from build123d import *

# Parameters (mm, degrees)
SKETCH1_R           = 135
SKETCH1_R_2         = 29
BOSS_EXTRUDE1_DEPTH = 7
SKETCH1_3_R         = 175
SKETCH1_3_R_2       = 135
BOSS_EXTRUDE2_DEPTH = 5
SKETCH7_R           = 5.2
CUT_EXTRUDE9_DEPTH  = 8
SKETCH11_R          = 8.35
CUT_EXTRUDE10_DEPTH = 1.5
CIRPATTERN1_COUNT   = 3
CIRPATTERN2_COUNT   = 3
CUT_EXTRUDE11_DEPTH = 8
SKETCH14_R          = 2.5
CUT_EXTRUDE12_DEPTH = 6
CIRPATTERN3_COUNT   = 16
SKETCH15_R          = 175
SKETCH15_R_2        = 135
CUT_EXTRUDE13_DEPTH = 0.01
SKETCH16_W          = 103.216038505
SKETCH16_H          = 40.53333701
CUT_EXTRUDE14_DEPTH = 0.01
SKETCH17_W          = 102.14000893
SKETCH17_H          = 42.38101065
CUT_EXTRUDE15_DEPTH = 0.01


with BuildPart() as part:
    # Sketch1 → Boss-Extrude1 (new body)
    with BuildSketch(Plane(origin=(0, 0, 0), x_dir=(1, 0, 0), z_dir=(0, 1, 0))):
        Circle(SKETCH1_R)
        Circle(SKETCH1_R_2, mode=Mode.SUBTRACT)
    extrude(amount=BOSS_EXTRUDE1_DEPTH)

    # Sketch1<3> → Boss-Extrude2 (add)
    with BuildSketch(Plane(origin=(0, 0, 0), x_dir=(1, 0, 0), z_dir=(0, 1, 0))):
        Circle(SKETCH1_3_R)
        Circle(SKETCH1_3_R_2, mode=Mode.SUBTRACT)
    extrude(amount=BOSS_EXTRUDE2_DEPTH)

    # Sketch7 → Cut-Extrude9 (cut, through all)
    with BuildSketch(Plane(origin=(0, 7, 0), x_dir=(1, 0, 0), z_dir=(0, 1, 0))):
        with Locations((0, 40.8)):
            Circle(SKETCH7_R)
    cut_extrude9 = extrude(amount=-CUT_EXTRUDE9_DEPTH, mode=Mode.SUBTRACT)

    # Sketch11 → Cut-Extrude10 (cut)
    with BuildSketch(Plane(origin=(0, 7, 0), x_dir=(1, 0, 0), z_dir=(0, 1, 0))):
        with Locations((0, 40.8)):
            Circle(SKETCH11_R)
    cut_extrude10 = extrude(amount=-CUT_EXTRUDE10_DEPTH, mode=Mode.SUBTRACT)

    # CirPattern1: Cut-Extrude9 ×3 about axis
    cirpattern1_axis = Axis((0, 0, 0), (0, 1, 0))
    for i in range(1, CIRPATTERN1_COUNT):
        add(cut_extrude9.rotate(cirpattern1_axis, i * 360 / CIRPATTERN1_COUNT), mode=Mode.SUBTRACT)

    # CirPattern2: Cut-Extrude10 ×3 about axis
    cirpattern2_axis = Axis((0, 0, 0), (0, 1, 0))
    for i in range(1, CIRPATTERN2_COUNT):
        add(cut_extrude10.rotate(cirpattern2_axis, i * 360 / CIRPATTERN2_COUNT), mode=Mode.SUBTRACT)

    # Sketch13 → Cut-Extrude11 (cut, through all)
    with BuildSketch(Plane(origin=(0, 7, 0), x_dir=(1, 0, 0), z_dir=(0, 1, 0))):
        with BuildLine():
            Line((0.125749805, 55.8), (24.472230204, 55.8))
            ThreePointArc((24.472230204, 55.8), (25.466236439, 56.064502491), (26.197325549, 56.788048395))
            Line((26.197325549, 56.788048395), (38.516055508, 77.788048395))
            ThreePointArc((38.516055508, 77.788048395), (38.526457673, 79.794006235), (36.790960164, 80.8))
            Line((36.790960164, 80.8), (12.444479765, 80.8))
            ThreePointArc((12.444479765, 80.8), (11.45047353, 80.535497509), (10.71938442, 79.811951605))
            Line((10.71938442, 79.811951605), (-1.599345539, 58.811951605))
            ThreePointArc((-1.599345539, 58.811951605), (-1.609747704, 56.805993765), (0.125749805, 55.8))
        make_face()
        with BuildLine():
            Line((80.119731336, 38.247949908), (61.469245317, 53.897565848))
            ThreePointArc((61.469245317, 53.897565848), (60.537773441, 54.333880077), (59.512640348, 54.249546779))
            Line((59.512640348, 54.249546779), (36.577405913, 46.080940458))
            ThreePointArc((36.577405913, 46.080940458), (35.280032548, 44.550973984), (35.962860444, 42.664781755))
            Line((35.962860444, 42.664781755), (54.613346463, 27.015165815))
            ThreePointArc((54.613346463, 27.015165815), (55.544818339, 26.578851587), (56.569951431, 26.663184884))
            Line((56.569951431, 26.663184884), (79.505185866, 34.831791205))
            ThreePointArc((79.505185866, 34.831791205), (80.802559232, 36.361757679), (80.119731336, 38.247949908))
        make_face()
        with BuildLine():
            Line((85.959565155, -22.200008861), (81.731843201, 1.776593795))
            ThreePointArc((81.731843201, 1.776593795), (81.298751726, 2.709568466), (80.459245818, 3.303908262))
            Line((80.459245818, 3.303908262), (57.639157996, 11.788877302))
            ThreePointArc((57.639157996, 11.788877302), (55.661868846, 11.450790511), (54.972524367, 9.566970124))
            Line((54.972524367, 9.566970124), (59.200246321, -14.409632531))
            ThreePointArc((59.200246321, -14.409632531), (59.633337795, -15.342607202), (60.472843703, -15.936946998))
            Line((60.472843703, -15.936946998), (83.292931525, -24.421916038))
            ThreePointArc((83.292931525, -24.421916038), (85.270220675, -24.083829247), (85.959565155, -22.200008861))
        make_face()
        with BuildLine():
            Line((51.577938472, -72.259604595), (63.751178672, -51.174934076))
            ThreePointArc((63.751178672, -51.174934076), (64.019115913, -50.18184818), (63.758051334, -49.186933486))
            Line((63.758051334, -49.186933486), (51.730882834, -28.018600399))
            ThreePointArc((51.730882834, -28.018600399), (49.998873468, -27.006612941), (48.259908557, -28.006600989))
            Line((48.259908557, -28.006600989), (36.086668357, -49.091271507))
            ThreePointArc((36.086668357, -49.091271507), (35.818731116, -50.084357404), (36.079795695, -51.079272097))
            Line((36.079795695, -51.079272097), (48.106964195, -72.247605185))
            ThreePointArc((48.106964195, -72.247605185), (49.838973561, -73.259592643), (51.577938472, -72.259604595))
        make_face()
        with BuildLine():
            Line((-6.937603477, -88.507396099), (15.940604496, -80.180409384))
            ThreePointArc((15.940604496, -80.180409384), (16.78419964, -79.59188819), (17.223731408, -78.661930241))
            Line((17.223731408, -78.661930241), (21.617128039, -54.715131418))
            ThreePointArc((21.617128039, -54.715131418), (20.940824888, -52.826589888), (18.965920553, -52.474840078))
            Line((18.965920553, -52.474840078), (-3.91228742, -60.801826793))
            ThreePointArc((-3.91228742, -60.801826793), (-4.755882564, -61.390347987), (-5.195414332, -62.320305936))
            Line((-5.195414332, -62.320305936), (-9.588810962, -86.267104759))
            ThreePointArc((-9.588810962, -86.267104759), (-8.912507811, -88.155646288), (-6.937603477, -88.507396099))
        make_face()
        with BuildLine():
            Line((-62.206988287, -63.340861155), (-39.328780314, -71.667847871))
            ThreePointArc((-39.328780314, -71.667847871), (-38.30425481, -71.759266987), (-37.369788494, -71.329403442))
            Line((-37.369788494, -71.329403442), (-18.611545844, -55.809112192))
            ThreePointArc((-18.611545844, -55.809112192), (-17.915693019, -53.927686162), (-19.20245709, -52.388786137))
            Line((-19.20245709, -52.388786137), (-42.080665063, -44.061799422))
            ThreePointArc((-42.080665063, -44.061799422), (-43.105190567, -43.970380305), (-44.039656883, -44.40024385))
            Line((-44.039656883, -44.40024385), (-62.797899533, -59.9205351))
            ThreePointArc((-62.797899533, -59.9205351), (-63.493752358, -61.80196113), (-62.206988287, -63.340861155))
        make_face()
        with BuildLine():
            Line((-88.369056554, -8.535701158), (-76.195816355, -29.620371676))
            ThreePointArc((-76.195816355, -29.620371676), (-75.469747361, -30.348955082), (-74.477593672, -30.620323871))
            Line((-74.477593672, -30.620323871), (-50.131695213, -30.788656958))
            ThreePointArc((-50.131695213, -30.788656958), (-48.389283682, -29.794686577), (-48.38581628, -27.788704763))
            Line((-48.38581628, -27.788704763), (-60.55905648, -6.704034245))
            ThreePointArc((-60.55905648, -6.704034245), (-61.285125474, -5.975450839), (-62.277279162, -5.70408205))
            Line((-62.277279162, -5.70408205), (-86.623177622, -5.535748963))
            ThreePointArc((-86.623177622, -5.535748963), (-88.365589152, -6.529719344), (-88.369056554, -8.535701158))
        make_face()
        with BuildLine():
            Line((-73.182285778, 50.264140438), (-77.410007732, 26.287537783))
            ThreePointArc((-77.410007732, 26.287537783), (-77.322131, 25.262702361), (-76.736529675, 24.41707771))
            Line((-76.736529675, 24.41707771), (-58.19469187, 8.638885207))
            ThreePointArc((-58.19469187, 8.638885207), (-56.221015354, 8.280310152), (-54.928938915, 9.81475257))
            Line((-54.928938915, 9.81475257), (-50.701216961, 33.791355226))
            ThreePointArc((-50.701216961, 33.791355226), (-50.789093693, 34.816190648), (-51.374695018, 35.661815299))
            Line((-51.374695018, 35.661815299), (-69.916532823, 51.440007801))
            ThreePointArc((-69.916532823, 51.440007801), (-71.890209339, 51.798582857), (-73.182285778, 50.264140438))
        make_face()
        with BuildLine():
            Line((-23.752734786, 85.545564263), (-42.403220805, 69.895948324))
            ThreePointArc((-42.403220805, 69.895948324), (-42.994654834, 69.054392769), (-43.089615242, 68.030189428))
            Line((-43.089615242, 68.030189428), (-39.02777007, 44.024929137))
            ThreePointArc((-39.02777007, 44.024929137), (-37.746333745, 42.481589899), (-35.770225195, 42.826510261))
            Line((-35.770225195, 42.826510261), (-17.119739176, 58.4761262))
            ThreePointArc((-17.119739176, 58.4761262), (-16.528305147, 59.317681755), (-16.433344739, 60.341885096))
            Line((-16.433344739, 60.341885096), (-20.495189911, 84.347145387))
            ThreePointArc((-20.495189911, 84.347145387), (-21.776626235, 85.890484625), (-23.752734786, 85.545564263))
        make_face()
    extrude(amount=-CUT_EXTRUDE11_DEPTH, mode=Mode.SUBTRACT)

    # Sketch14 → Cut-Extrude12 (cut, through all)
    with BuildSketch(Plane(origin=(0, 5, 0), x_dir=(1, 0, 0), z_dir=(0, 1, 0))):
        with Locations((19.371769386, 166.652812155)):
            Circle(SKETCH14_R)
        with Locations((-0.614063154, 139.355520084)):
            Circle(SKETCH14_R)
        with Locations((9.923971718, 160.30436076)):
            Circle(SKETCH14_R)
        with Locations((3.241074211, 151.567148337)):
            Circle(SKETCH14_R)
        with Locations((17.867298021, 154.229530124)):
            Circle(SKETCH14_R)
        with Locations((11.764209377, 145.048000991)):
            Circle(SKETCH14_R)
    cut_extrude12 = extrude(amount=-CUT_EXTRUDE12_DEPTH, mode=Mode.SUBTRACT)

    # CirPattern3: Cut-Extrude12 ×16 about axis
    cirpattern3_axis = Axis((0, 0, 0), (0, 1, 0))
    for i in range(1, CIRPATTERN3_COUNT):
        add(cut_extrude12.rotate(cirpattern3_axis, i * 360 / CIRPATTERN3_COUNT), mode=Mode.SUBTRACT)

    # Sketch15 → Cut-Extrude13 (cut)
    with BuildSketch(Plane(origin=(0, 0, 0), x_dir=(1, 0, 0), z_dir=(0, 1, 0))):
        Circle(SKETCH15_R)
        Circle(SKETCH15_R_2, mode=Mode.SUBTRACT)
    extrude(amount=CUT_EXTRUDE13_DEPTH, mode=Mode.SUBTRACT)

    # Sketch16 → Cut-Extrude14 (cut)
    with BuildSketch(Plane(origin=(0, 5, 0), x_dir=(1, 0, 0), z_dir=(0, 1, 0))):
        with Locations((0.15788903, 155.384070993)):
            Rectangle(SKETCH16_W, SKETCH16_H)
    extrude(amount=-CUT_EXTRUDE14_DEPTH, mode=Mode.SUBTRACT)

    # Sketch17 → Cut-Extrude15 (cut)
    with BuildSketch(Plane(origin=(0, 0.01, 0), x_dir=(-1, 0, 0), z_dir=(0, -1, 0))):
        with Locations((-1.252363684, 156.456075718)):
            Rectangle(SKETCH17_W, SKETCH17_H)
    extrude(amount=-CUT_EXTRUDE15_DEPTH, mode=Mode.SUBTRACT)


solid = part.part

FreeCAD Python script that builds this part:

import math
import FreeCAD as App
import Part
import Sketcher
from FreeCAD import Vector
Q = App.Units.Quantity

doc = App.newDocument("Part")
body = doc.addObject("PartDesign::Body", "Body")

# Sketch on XZ plane
sketch1 = body.newObject("Sketcher::SketchObject", "Sketch")
sketch1.AttachmentSupport = (doc.getObject("XZ_Plane"), [""])
sketch1.MapMode = "FlatFace"
sketch1.addGeometry(Part.Circle(Vector(0, 0, 0), Vector(0, 0, 1), 135), False)
sketch1.addGeometry(Part.Circle(Vector(0, 0, 0), Vector(0, 0, 1), 29), False)
sketch1.addConstraint(Sketcher.Constraint("Coincident", 0, 3, -1, 1))
sketch1.addConstraint(Sketcher.Constraint("Coincident", 1, 3, -1, 1))
sketch1.addConstraint(Sketcher.Constraint("Diameter", 0, 270.0))
sketch1.addConstraint(Sketcher.Constraint("Diameter", 1, 58.0))
pad1 = body.newObject("PartDesign::Pad", "Pad")
pad1.Profile = sketch1
pad1.Length = 7
pad1.Reversed = True

# Sketch on XZ plane
sketch2 = body.newObject("Sketcher::SketchObject", "Sketch001")
sketch2.AttachmentSupport = (doc.getObject("XZ_Plane"), [""])
sketch2.MapMode = "FlatFace"
sketch2.addGeometry(Part.Circle(Vector(0, 0, 0), Vector(0, 0, 1), 175), False)
sketch2.addGeometry(Part.Circle(Vector(0, 0, 0), Vector(0, 0, 1), 135), False)
sketch2.addConstraint(Sketcher.Constraint("Coincident", 0, 3, -1, 1))
sketch2.addConstraint(Sketcher.Constraint("Coincident", 1, 3, -1, 1))
sketch2.addConstraint(Sketcher.Constraint("Diameter", 0, 350.0))
sketch2.addConstraint(Sketcher.Constraint("Diameter", 1, 270.0))
pad2 = body.newObject("PartDesign::Pad", "Pad001")
pad2.Profile = sketch2
pad2.Length = 5
pad2.Reversed = True

# Sketch on XZ plane
sketch3 = body.newObject("Sketcher::SketchObject", "Sketch002")
sketch3.AttachmentSupport = (doc.getObject("XZ_Plane"), [""])
sketch3.MapMode = "FlatFace"
sketch3.AttachmentOffset = App.Placement(Vector(0, 0, -7), App.Rotation())
sketch3.addGeometry(Part.Circle(Vector(0, -41, 0), Vector(0, 0, 1), 5), False)
sketch3.addConstraint(Sketcher.Constraint("PointOnObject", 0, 3, -2))
sketch3.addConstraint(Sketcher.Constraint("Diameter", 0, 10.4))
sketch3.addConstraint(Sketcher.Constraint("DistanceY", 0, 3, -1, 1, 40.8))
pocket1 = body.newObject("PartDesign::Pocket", "Pocket")
pocket1.Profile = sketch3
pocket1.Type = "ThroughAll"
pocket1.Reversed = True

# Sketch on XZ plane
sketch4 = body.newObject("Sketcher::SketchObject", "Sketch003")
sketch4.AttachmentSupport = (doc.getObject("XZ_Plane"), [""])
sketch4.MapMode = "FlatFace"
sketch4.AttachmentOffset = App.Placement(Vector(0, 0, -7), App.Rotation())
sketch4.addGeometry(Part.Circle(Vector(0, -41, 0), Vector(0, 0, 1), 8), False)
sketch4.addConstraint(Sketcher.Constraint("PointOnObject", 0, 3, -2))
sketch4.addConstraint(Sketcher.Constraint("Diameter", 0, 16.7))
sketch4.addConstraint(Sketcher.Constraint("DistanceY", 0, 3, -1, 1, 40.8))
pocket2 = body.newObject("PartDesign::Pocket", "Pocket001")
pocket2.Profile = sketch4
pocket2.Length = 1.5
pocket2.Reversed = True
doc.recompute()

polarpattern = body.newObject("PartDesign::PolarPattern", "PolarPattern")
polarpattern.Originals = [pocket1]
polarpattern.Axis = (doc.getObject("Y_Axis"), [""])
polarpattern.Angle = 360
polarpattern.Occurrences = 3
body.Tip = polarpattern
doc.recompute()

polarpattern2 = body.newObject("PartDesign::PolarPattern", "PolarPattern001")
polarpattern2.Originals = [pocket2]
polarpattern2.Axis = (doc.getObject("Y_Axis"), [""])
polarpattern2.Angle = 360
polarpattern2.Occurrences = 3
body.Tip = polarpattern2

# Sketch on XZ plane
sketch5 = body.newObject("Sketcher::SketchObject", "Sketch004")
sketch5.AttachmentSupport = (doc.getObject("XZ_Plane"), [""])
sketch5.MapMode = "FlatFace"
sketch5.AttachmentOffset = App.Placement(Vector(0, 0, -7), App.Rotation())
sketch5.addGeometry(Part.LineSegment(Vector(0.1, -55.8, 0), Vector(24.5, -55.8, 0)), False)
sketch5.addGeometry(Part.ArcOfCircle(Part.Circle(Vector(24.5, -57.8, 0), Vector(0, 0, 1), 2), math.radians(30), math.radians(90)), False)
sketch5.addGeometry(Part.LineSegment(Vector(26.2, -56.8, 0), Vector(38.5, -77.8, 0)), False)
sketch5.addGeometry(Part.ArcOfCircle(Part.Circle(Vector(36.8, -78.8, 0), Vector(0, 0, 1), 2), math.radians(-90), math.radians(30)), False)
sketch5.addGeometry(Part.LineSegment(Vector(36.8, -80.8, 0), Vector(12.4, -80.8, 0)), False)
sketch5.addGeometry(Part.ArcOfCircle(Part.Circle(Vector(12.4, -78.8, 0), Vector(0, 0, 1), 2), math.radians(-150), math.radians(-90)), False)
sketch5.addGeometry(Part.LineSegment(Vector(10.7, -79.8, 0), Vector(-1.6, -58.8, 0)), False)
sketch5.addGeometry(Part.ArcOfCircle(Part.Circle(Vector(0.1, -57.8, 0), Vector(0, 0, 1), 2), math.radians(90), math.radians(210)), False)
sketch5.addGeometry(Part.LineSegment(Vector(80.1, -38.2, 0), Vector(61.5, -53.9, 0)), False)
sketch5.addGeometry(Part.ArcOfCircle(Part.Circle(Vector(60.2, -52.4, 0), Vector(0, 0, 1), 2), math.radians(-110), math.radians(-50)), False)
sketch5.addGeometry(Part.LineSegment(Vector(59.5, -54.2, 0), Vector(36.6, -46.1, 0)), False)
sketch5.addGeometry(Part.ArcOfCircle(Part.Circle(Vector(37.2, -44.2, 0), Vector(0, 0, 1), 2), math.radians(130), math.radians(250)), False)
sketch5.addGeometry(Part.LineSegment(Vector(36, -42.7, 0), Vector(54.6, -27, 0)), False)
sketch5.addGeometry(Part.ArcOfCircle(Part.Circle(Vector(55.9, -28.5, 0), Vector(0, 0, 1), 2), math.radians(70), math.radians(130)), False)
sketch5.addGeometry(Part.LineSegment(Vector(56.6, -26.7, 0), Vector(79.5, -34.8, 0)), False)
sketch5.addGeometry(Part.ArcOfCircle(Part.Circle(Vector(78.8, -36.7, 0), Vector(0, 0, 1), 2), math.radians(-50), math.radians(70)), False)
sketch5.addGeometry(Part.LineSegment(Vector(86, 22.2, 0), Vector(81.7, -1.8, 0)), False)
sketch5.addGeometry(Part.ArcOfCircle(Part.Circle(Vector(79.8, -1.4, 0), Vector(0, 0, 1), 2), math.radians(-70), math.radians(-10)), False)
sketch5.addGeometry(Part.LineSegment(Vector(80.5, -3.3, 0), Vector(57.6, -11.8, 0)), False)
sketch5.addGeometry(Part.ArcOfCircle(Part.Circle(Vector(56.9, -9.9, 0), Vector(0, 0, 1), 2), math.radians(170), math.radians(290)), False)
sketch5.addGeometry(Part.LineSegment(Vector(55, -9.6, 0), Vector(59.2, 14.4, 0)), False)
sketch5.addGeometry(Part.ArcOfCircle(Part.Circle(Vector(61.2, 14.1, 0), Vector(0, 0, 1), 2), math.radians(110), math.radians(170)), False)
sketch5.addGeometry(Part.LineSegment(Vector(60.5, 15.9, 0), Vector(83.3, 24.4, 0)), False)
sketch5.addGeometry(Part.ArcOfCircle(Part.Circle(Vector(84, 22.5, 0), Vector(0, 0, 1), 2), math.radians(-10), math.radians(110)), False)
sketch5.addGeometry(Part.LineSegment(Vector(51.6, 72.3, 0), Vector(63.8, 51.2, 0)), False)
sketch5.addGeometry(Part.ArcOfCircle(Part.Circle(Vector(62, 50.2, 0), Vector(0, 0, 1), 2), math.radians(-30), math.radians(30)), False)
sketch5.addGeometry(Part.LineSegment(Vector(63.8, 49.2, 0), Vector(51.7, 28, 0)), False)
sketch5.addGeometry(Part.ArcOfCircle(Part.Circle(Vector(50, 29, 0), Vector(0, 0, 1), 2), math.radians(-150), math.radians(-30)), False)
sketch5.addGeometry(Part.LineSegment(Vector(48.3, 28, 0), Vector(36.1, 49.1, 0)), False)
sketch5.addGeometry(Part.ArcOfCircle(Part.Circle(Vector(37.8, 50.1, 0), Vector(0, 0, 1), 2), math.radians(150), math.radians(210)), False)
sketch5.addGeometry(Part.LineSegment(Vector(36.1, 51.1, 0), Vector(48.1, 72.2, 0)), False)
sketch5.addGeometry(Part.ArcOfCircle(Part.Circle(Vector(49.8, 71.3, 0), Vector(0, 0, 1), 2), math.radians(30), math.radians(150)), False)
sketch5.addGeometry(Part.LineSegment(Vector(-6.9, 88.5, 0), Vector(15.9, 80.2, 0)), False)
sketch5.addGeometry(Part.ArcOfCircle(Part.Circle(Vector(15.3, 78.3, 0), Vector(0, 0, 1), 2), math.radians(10), math.radians(70)), False)
sketch5.addGeometry(Part.LineSegment(Vector(17.2, 78.7, 0), Vector(21.6, 54.7, 0)), False)
sketch5.addGeometry(Part.ArcOfCircle(Part.Circle(Vector(19.6, 54.4, 0), Vector(0, 0, 1), 2), math.radians(-110), math.radians(10)), False)
sketch5.addGeometry(Part.LineSegment(Vector(19, 52.5, 0), Vector(-3.9, 60.8, 0)), False)
sketch5.addGeometry(Part.ArcOfCircle(Part.Circle(Vector(-3.2, 62.7, 0), Vector(0, 0, 1), 2), math.radians(-170), math.radians(-110)), False)
sketch5.addGeometry(Part.LineSegment(Vector(-5.2, 62.3, 0), Vector(-9.6, 86.3, 0)), False)
sketch5.addGeometry(Part.ArcOfCircle(Part.Circle(Vector(-7.6, 86.6, 0), Vector(0, 0, 1), 2), math.radians(70), math.radians(190)), False)
sketch5.addGeometry(Part.LineSegment(Vector(-62.2, 63.3, 0), Vector(-39.3, 71.7, 0)), False)
sketch5.addGeometry(Part.ArcOfCircle(Part.Circle(Vector(-38.6, 69.8, 0), Vector(0, 0, 1), 2), math.radians(50), math.radians(110)), False)
sketch5.addGeometry(Part.LineSegment(Vector(-37.4, 71.3, 0), Vector(-18.6, 55.8, 0)), False)
sketch5.addGeometry(Part.ArcOfCircle(Part.Circle(Vector(-19.9, 54.3, 0), Vector(0, 0, 1), 2), math.radians(-70), math.radians(50)), False)
sketch5.addGeometry(Part.LineSegment(Vector(-19.2, 52.4, 0), Vector(-42.1, 44.1, 0)), False)
sketch5.addGeometry(Part.ArcOfCircle(Part.Circle(Vector(-42.8, 45.9, 0), Vector(0, 0, 1), 2), math.radians(-130), math.radians(-70)), False)
sketch5.addGeometry(Part.LineSegment(Vector(-44, 44.4, 0), Vector(-62.8, 59.9, 0)), False)
sketch5.addGeometry(Part.ArcOfCircle(Part.Circle(Vector(-61.5, 61.5, 0), Vector(0, 0, 1), 2), math.radians(110), math.radians(230)), False)
sketch5.addGeometry(Part.LineSegment(Vector(-88.4, 8.5, 0), Vector(-76.2, 29.6, 0)), False)
sketch5.addGeometry(Part.ArcOfCircle(Part.Circle(Vector(-74.5, 28.6, 0), Vector(0, 0, 1), 2), math.radians(90), math.radians(150)), False)
sketch5.addGeometry(Part.LineSegment(Vector(-74.5, 30.6, 0), Vector(-50.1, 30.8, 0)), False)
sketch5.addGeometry(Part.ArcOfCircle(Part.Circle(Vector(-50.1, 28.8, 0), Vector(0, 0, 1), 2), math.radians(-30), math.radians(90)), False)
sketch5.addGeometry(Part.LineSegment(Vector(-48.4, 27.8, 0), Vector(-60.6, 6.7, 0)), False)
sketch5.addGeometry(Part.ArcOfCircle(Part.Circle(Vector(-62.3, 7.7, 0), Vector(0, 0, 1), 2), math.radians(-90), math.radians(-30)), False)
sketch5.addGeometry(Part.LineSegment(Vector(-62.3, 5.7, 0), Vector(-86.6, 5.5, 0)), False)
sketch5.addGeometry(Part.ArcOfCircle(Part.Circle(Vector(-86.6, 7.5, 0), Vector(0, 0, 1), 2), math.radians(150), math.radians(270)), False)
sketch5.addGeometry(Part.LineSegment(Vector(-73.2, -50.3, 0), Vector(-77.4, -26.3, 0)), False)
sketch5.addGeometry(Part.ArcOfCircle(Part.Circle(Vector(-75.4, -25.9, 0), Vector(0, 0, 1), 2), math.radians(130), math.radians(190)), False)
sketch5.addGeometry(Part.LineSegment(Vector(-76.7, -24.4, 0), Vector(-58.2, -8.6, 0)), False)
sketch5.addGeometry(Part.ArcOfCircle(Part.Circle(Vector(-56.9, -10.2, 0), Vector(0, 0, 1), 2), math.radians(10), math.radians(130)), False)
sketch5.addGeometry(Part.LineSegment(Vector(-54.9, -9.8, 0), Vector(-50.7, -33.8, 0)), False)
sketch5.addGeometry(Part.ArcOfCircle(Part.Circle(Vector(-52.7, -34.1, 0), Vector(0, 0, 1), 2), math.radians(-50), math.radians(10)), False)
sketch5.addGeometry(Part.LineSegment(Vector(-51.4, -35.7, 0), Vector(-69.9, -51.4, 0)), False)
sketch5.addGeometry(Part.ArcOfCircle(Part.Circle(Vector(-71.2, -49.9, 0), Vector(0, 0, 1), 2), math.radians(-170), math.radians(-50)), False)
sketch5.addGeometry(Part.LineSegment(Vector(-23.8, -85.5, 0), Vector(-42.4, -69.9, 0)), False)
sketch5.addGeometry(Part.ArcOfCircle(Part.Circle(Vector(-41.1, -68.4, 0), Vector(0, 0, 1), 2), math.radians(170), math.radians(230)), False)
sketch5.addGeometry(Part.LineSegment(Vector(-43.1, -68, 0), Vector(-39, -44, 0)), False)
sketch5.addGeometry(Part.ArcOfCircle(Part.Circle(Vector(-37.1, -44.4, 0), Vector(0, 0, 1), 2), math.radians(50), math.radians(170)), False)
sketch5.addGeometry(Part.LineSegment(Vector(-35.8, -42.8, 0), Vector(-17.1, -58.5, 0)), False)
sketch5.addGeometry(Part.ArcOfCircle(Part.Circle(Vector(-18.4, -60, 0), Vector(0, 0, 1), 2), math.radians(-10), math.radians(50)), False)
sketch5.addGeometry(Part.LineSegment(Vector(-16.4, -60.3, 0), Vector(-20.5, -84.3, 0)), False)
sketch5.addGeometry(Part.ArcOfCircle(Part.Circle(Vector(-22.5, -84, 0), Vector(0, 0, 1), 2), math.radians(-130), math.radians(-10)), False)
sketch5.addConstraint(Sketcher.Constraint("Tangent", 0, 2, 1, 2))
sketch5.addConstraint(Sketcher.Constraint("Tangent", 1, 1, 2, 1))
sketch5.addConstraint(Sketcher.Constraint("Tangent", 2, 2, 3, 2))
sketch5.addConstraint(Sketcher.Constraint("Tangent", 3, 1, 4, 1))
sketch5.addConstraint(Sketcher.Constraint("Tangent", 4, 2, 5, 2))
sketch5.addConstraint(Sketcher.Constraint("Tangent", 5, 1, 6, 1))
sketch5.addConstraint(Sketcher.Constraint("Tangent", 6, 2, 7, 2))
sketch5.addConstraint(Sketcher.Constraint("Tangent", 7, 1, 0, 1))
sketch5.addConstraint(Sketcher.Constraint("Tangent", 8, 2, 9, 2))
sketch5.addConstraint(Sketcher.Constraint("Tangent", 9, 1, 10, 1))
sketch5.addConstraint(Sketcher.Constraint("Tangent", 10, 2, 11, 2))
sketch5.addConstraint(Sketcher.Constraint("Tangent", 11, 1, 12, 1))
sketch5.addConstraint(Sketcher.Constraint("Tangent", 12, 2, 13, 2))
sketch5.addConstraint(Sketcher.Constraint("Tangent", 13, 1, 14, 1))
sketch5.addConstraint(Sketcher.Constraint("Tangent", 14, 2, 15, 2))
sketch5.addConstraint(Sketcher.Constraint("Tangent", 15, 1, 8, 1))
sketch5.addConstraint(Sketcher.Constraint("Tangent", 16, 2, 17, 2))
sketch5.addConstraint(Sketcher.Constraint("Tangent", 17, 1, 18, 1))
sketch5.addConstraint(Sketcher.Constraint("Tangent", 18, 2, 19, 2))
sketch5.addConstraint(Sketcher.Constraint("Tangent", 19, 1, 20, 1))
sketch5.addConstraint(Sketcher.Constraint("Tangent", 20, 2, 21, 2))
sketch5.addConstraint(Sketcher.Constraint("Tangent", 21, 1, 22, 1))
sketch5.addConstraint(Sketcher.Constraint("Tangent", 22, 2, 23, 2))
sketch5.addConstraint(Sketcher.Constraint("Tangent", 23, 1, 16, 1))
sketch5.addConstraint(Sketcher.Constraint("Tangent", 24, 2, 25, 2))
sketch5.addConstraint(Sketcher.Constraint("Tangent", 25, 1, 26, 1))
sketch5.addConstraint(Sketcher.Constraint("Tangent", 26, 2, 27, 2))
sketch5.addConstraint(Sketcher.Constraint("Tangent", 27, 1, 28, 1))
sketch5.addConstraint(Sketcher.Constraint("Tangent", 28, 2, 29, 2))
sketch5.addConstraint(Sketcher.Constraint("Tangent", 29, 1, 30, 1))
sketch5.addConstraint(Sketcher.Constraint("Tangent", 30, 2, 31, 2))
sketch5.addConstraint(Sketcher.Constraint("Tangent", 31, 1, 24, 1))
sketch5.addConstraint(Sketcher.Constraint("Tangent", 32, 2, 33, 2))
sketch5.addConstraint(Sketcher.Constraint("Tangent", 33, 1, 34, 1))
sketch5.addConstraint(Sketcher.Constraint("Tangent", 34, 2, 35, 2))
sketch5.addConstraint(Sketcher.Constraint("Tangent", 35, 1, 36, 1))
sketch5.addConstraint(Sketcher.Constraint("Tangent", 36, 2, 37, 2))
sketch5.addConstraint(Sketcher.Constraint("Tangent", 37, 1, 38, 1))
sketch5.addConstraint(Sketcher.Constraint("Tangent", 38, 2, 39, 2))
sketch5.addConstraint(Sketcher.Constraint("Tangent", 39, 1, 32, 1))
sketch5.addConstraint(Sketcher.Constraint("Tangent", 40, 2, 41, 2))
sketch5.addConstraint(Sketcher.Constraint("Tangent", 41, 1, 42, 1))
sketch5.addConstraint(Sketcher.Constraint("Tangent", 42, 2, 43, 2))
sketch5.addConstraint(Sketcher.Constraint("Tangent", 43, 1, 44, 1))
sketch5.addConstraint(Sketcher.Constraint("Tangent", 44, 2, 45, 2))
sketch5.addConstraint(Sketcher.Constraint("Tangent", 45, 1, 46, 1))
sketch5.addConstraint(Sketcher.Constraint("Tangent", 46, 2, 47, 2))
sketch5.addConstraint(Sketcher.Constraint("Tangent", 47, 1, 40, 1))
sketch5.addConstraint(Sketcher.Constraint("Tangent", 48, 2, 49, 2))
sketch5.addConstraint(Sketcher.Constraint("Tangent", 49, 1, 50, 1))
sketch5.addConstraint(Sketcher.Constraint("Tangent", 50, 2, 51, 2))
sketch5.addConstraint(Sketcher.Constraint("Tangent", 51, 1, 52, 1))
sketch5.addConstraint(Sketcher.Constraint("Tangent", 52, 2, 53, 2))
sketch5.addConstraint(Sketcher.Constraint("Tangent", 53, 1, 54, 1))
sketch5.addConstraint(Sketcher.Constraint("Tangent", 54, 2, 55, 2))
sketch5.addConstraint(Sketcher.Constraint("Tangent", 55, 1, 48, 1))
sketch5.addConstraint(Sketcher.Constraint("Tangent", 56, 2, 57, 2))
sketch5.addConstraint(Sketcher.Constraint("Tangent", 57, 1, 58, 1))
sketch5.addConstraint(Sketcher.Constraint("Tangent", 58, 2, 59, 2))
sketch5.addConstraint(Sketcher.Constraint("Tangent", 59, 1, 60, 1))
sketch5.addConstraint(Sketcher.Constraint("Tangent", 60, 2, 61, 2))
sketch5.addConstraint(Sketcher.Constraint("Tangent", 61, 1, 62, 1))
sketch5.addConstraint(Sketcher.Constraint("Tangent", 62, 2, 63, 2))
sketch5.addConstraint(Sketcher.Constraint("Tangent", 63, 1, 56, 1))
sketch5.addConstraint(Sketcher.Constraint("Tangent", 64, 2, 65, 2))
sketch5.addConstraint(Sketcher.Constraint("Tangent", 65, 1, 66, 1))
sketch5.addConstraint(Sketcher.Constraint("Tangent", 66, 2, 67, 2))
sketch5.addConstraint(Sketcher.Constraint("Tangent", 67, 1, 68, 1))
sketch5.addConstraint(Sketcher.Constraint("Tangent", 68, 2, 69, 2))
sketch5.addConstraint(Sketcher.Constraint("Tangent", 69, 1, 70, 1))
sketch5.addConstraint(Sketcher.Constraint("Tangent", 70, 2, 71, 2))
sketch5.addConstraint(Sketcher.Constraint("Tangent", 71, 1, 64, 1))
sketch5.addConstraint(Sketcher.Constraint("Horizontal", 0))
sketch5.addConstraint(Sketcher.Constraint("Horizontal", 4))
sketch5.addConstraint(Sketcher.Constraint("Equal", 1, 3))
sketch5.addConstraint(Sketcher.Constraint("Equal", 3, 5))
sketch5.addConstraint(Sketcher.Constraint("Equal", 5, 7))
sketch5.addConstraint(Sketcher.Constraint("Equal", 7, 9))
sketch5.addConstraint(Sketcher.Constraint("Equal", 9, 11))
sketch5.addConstraint(Sketcher.Constraint("Equal", 11, 13))
sketch5.addConstraint(Sketcher.Constraint("Equal", 13, 15))
sketch5.addConstraint(Sketcher.Constraint("Equal", 15, 17))
sketch5.addConstraint(Sketcher.Constraint("Equal", 17, 19))
sketch5.addConstraint(Sketcher.Constraint("Equal", 19, 21))
sketch5.addConstraint(Sketcher.Constraint("Equal", 21, 23))
sketch5.addConstraint(Sketcher.Constraint("Equal", 23, 25))
sketch5.addConstraint(Sketcher.Constraint("Equal", 25, 27))
sketch5.addConstraint(Sketcher.Constraint("Equal", 27, 29))
sketch5.addConstraint(Sketcher.Constraint("Equal", 29, 31))
sketch5.addConstraint(Sketcher.Constraint("Equal", 31, 33))
sketch5.addConstraint(Sketcher.Constraint("Equal", 33, 35))
sketch5.addConstraint(Sketcher.Constraint("Equal", 35, 37))
sketch5.addConstraint(Sketcher.Constraint("Equal", 37, 39))
sketch5.addConstraint(Sketcher.Constraint("Equal", 39, 41))
sketch5.addConstraint(Sketcher.Constraint("Equal", 41, 43))
sketch5.addConstraint(Sketcher.Constraint("Equal", 43, 45))
sketch5.addConstraint(Sketcher.Constraint("Equal", 45, 47))
sketch5.addConstraint(Sketcher.Constraint("Equal", 47, 49))
sketch5.addConstraint(Sketcher.Constraint("Equal", 49, 51))
sketch5.addConstraint(Sketcher.Constraint("Equal", 51, 53))
sketch5.addConstraint(Sketcher.Constraint("Equal", 53, 55))
sketch5.addConstraint(Sketcher.Constraint("Equal", 55, 57))
sketch5.addConstraint(Sketcher.Constraint("Equal", 57, 59))
sketch5.addConstraint(Sketcher.Constraint("Equal", 59, 61))
sketch5.addConstraint(Sketcher.Constraint("Equal", 61, 63))
sketch5.addConstraint(Sketcher.Constraint("Equal", 63, 65))
sketch5.addConstraint(Sketcher.Constraint("Equal", 65, 67))
sketch5.addConstraint(Sketcher.Constraint("Equal", 67, 69))
sketch5.addConstraint(Sketcher.Constraint("Equal", 69, 71))
sketch5.addConstraint(Sketcher.Constraint("Parallel", 2, 6))
sketch5.addConstraint(Sketcher.Constraint("Parallel", 8, 12))
sketch5.addConstraint(Sketcher.Constraint("Parallel", 10, 14))
sketch5.addConstraint(Sketcher.Constraint("Parallel", 16, 20))
sketch5.addConstraint(Sketcher.Constraint("Parallel", 18, 22))
sketch5.addConstraint(Sketcher.Constraint("Parallel", 24, 28))
sketch5.addConstraint(Sketcher.Constraint("Parallel", 26, 30))
sketch5.addConstraint(Sketcher.Constraint("Parallel", 32, 36))
sketch5.addConstraint(Sketcher.Constraint("Parallel", 34, 38))
sketch5.addConstraint(Sketcher.Constraint("Parallel", 40, 44))
sketch5.addConstraint(Sketcher.Constraint("Parallel", 42, 46))
sketch5.addConstraint(Sketcher.Constraint("Parallel", 48, 52))
sketch5.addConstraint(Sketcher.Constraint("Parallel", 50, 54))
sketch5.addConstraint(Sketcher.Constraint("Parallel", 56, 60))
sketch5.addConstraint(Sketcher.Constraint("Parallel", 58, 62))
sketch5.addConstraint(Sketcher.Constraint("Parallel", 64, 68))
sketch5.addConstraint(Sketcher.Constraint("Parallel", 66, 70))
sketch5.addConstraint(Sketcher.Constraint("Equal", 6, 8))
sketch5.addConstraint(Sketcher.Constraint("Equal", 8, 10))
sketch5.addConstraint(Sketcher.Constraint("Equal", 14, 16))
sketch5.addConstraint(Sketcher.Constraint("Equal", 16, 18))
sketch5.addConstraint(Sketcher.Constraint("Equal", 22, 24))
sketch5.addConstraint(Sketcher.Constraint("Equal", 24, 26))
sketch5.addConstraint(Sketcher.Constraint("Equal", 30, 32))
sketch5.addConstraint(Sketcher.Constraint("Equal", 32, 34))
sketch5.addConstraint(Sketcher.Constraint("Equal", 38, 40))
sketch5.addConstraint(Sketcher.Constraint("Equal", 40, 42))
sketch5.addConstraint(Sketcher.Constraint("Equal", 46, 48))
sketch5.addConstraint(Sketcher.Constraint("Equal", 48, 50))
sketch5.addConstraint(Sketcher.Constraint("Equal", 54, 56))
sketch5.addConstraint(Sketcher.Constraint("Equal", 56, 58))
sketch5.addConstraint(Sketcher.Constraint("Equal", 62, 64))
sketch5.addConstraint(Sketcher.Constraint("Equal", 64, 66))
sketch5.addConstraint(Sketcher.Constraint("Radius", 1, 2.0))
sketch5.addConstraint(Sketcher.Constraint("Angle", 8, Q("-140 deg")))
sketch5.addConstraint(Sketcher.Constraint("Angle", 16, Q("-100 deg")))
sketch5.addConstraint(Sketcher.Constraint("Angle", 24, Q("-60 deg")))
sketch5.addConstraint(Sketcher.Constraint("Angle", 32, Q("-20 deg")))
sketch5.addConstraint(Sketcher.Constraint("Angle", 40, Q("20 deg")))
sketch5.addConstraint(Sketcher.Constraint("Angle", 48, Q("60 deg")))
sketch5.addConstraint(Sketcher.Constraint("Angle", 56, Q("100 deg")))
sketch5.addConstraint(Sketcher.Constraint("Angle", 64, Q("140 deg")))
sketch5.addConstraint(Sketcher.Constraint("DistanceY", 1, 3, -1, 1, 57.8))
sketch5.addConstraint(Sketcher.Constraint("DistanceY", 3, 3, -1, 1, 78.8))
sketch5.addConstraint(Sketcher.Constraint("DistanceX", 0, 1, 0, 2, 24.34648))
sketch5.addConstraint(Sketcher.Constraint("DistanceY", -1, 1, 27, 3, 29.006601))
sketch5.addConstraint(Sketcher.Constraint("DistanceY", -1, 1, 55, 3, 7.535701))
sketch5.addConstraint(Sketcher.Constraint("DistanceX", 67, 3, -1, 1, 37.0558))
sketch5.addConstraint(Sketcher.Constraint("DistanceY", 67, 3, -1, 1, 44.358599))
sketch5.addConstraint(Sketcher.Constraint("DistanceY", -1, 1, 26, 2, 28.0186))
sketch5.addConstraint(Sketcher.Constraint("DistanceY", -1, 1, 44, 2, 44.061799))
sketch5.addConstraint(Sketcher.Constraint("DistanceX", 46, 2, -1, 1, 62.7979))
sketch5.addConstraint(Sketcher.Constraint("Distance", 2, 24.34648))
sketch5.addConstraint(Sketcher.Constraint("DistanceX", -1, 1, 1, 3, 24.47223))
sketch5.addConstraint(Sketcher.Constraint("DistanceX", -1, 1, 9, 3, 60.18367))
sketch5.addConstraint(Sketcher.Constraint("DistanceY", 11, 3, -1, 1, 44.196871))
sketch5.addConstraint(Sketcher.Constraint("DistanceX", -1, 1, 13, 3, 55.898922))
sketch5.addConstraint(Sketcher.Constraint("DistanceX", -1, 1, 19, 3, 56.94214))
sketch5.addConstraint(Sketcher.Constraint("DistanceX", -1, 1, 23, 3, 83.98995))
sketch5.addConstraint(Sketcher.Constraint("DistanceX", -1, 1, 27, 3, 49.991959))
sketch5.addConstraint(Sketcher.Constraint("DistanceX", -1, 1, 35, 3, 19.649961))
sketch5.addConstraint(Sketcher.Constraint("DistanceY", -1, 1, 39, 3, 86.628011))
sketch5.addConstraint(Sketcher.Constraint("DistanceX", 41, 3, -1, 1, 38.64474))
sketch5.addConstraint(Sketcher.Constraint("DistanceY", 57, 3, -1, 1, 25.940241))
sketch5.addConstraint(Sketcher.Constraint("DistanceY", 59, 3, -1, 1, 10.162049))
sketch5.addConstraint(Sketcher.Constraint("DistanceX", 63, 3, -1, 1, 71.21267))
sketch5.addConstraint(Sketcher.Constraint("DistanceY", 65, 3, -1, 1, 68.363859))
sketch5.addConstraint(Sketcher.Constraint("DistanceY", 17, 1, -1, 1, 3.303908))
sketch5.addConstraint(Sketcher.Constraint("DistanceX", -1, 1, 33, 1, 17.223731))
sketch5.addConstraint(Sketcher.Constraint("DistanceX", 53, 1, -1, 1, 62.277279))
sketch5.addConstraint(Sketcher.Constraint("DistanceX", 49, 3, -1, 1, 74.463766))
pocket3 = body.newObject("PartDesign::Pocket", "Pocket002")
pocket3.Profile = sketch5
pocket3.Type = "ThroughAll"
pocket3.Reversed = True

# Sketch on XZ plane
sketch6 = body.newObject("Sketcher::SketchObject", "Sketch005")
sketch6.AttachmentSupport = (doc.getObject("XZ_Plane"), [""])
sketch6.MapMode = "FlatFace"
sketch6.AttachmentOffset = App.Placement(Vector(0, 0, -5), App.Rotation())
sketch6.addGeometry(Part.Circle(Vector(19.4, -166.7, 0), Vector(0, 0, 1), 2.5), False)
sketch6.addGeometry(Part.Circle(Vector(-0.6, -139.4, 0), Vector(0, 0, 1), 2.5), False)
sketch6.addGeometry(Part.Circle(Vector(9.9, -160.3, 0), Vector(0, 0, 1), 2.5), False)
sketch6.addGeometry(Part.Circle(Vector(3.2, -151.6, 0), Vector(0, 0, 1), 2.5), False)
sketch6.addGeometry(Part.Circle(Vector(17.9, -154.2, 0), Vector(0, 0, 1), 2.5), False)
sketch6.addGeometry(Part.Circle(Vector(11.8, -145, 0), Vector(0, 0, 1), 2.5), False)
sketch6.addConstraint(Sketcher.Constraint("Equal", 0, 1))
sketch6.addConstraint(Sketcher.Constraint("Equal", 1, 2))
sketch6.addConstraint(Sketcher.Constraint("Equal", 2, 3))
sketch6.addConstraint(Sketcher.Constraint("Equal", 3, 4))
sketch6.addConstraint(Sketcher.Constraint("Equal", 4, 5))
sketch6.addConstraint(Sketcher.Constraint("Diameter", 0, 5.0))
sketch6.addConstraint(Sketcher.Constraint("DistanceY", 5, 3, -1, 1, 145.048001))
sketch6.addConstraint(Sketcher.Constraint("DistanceX", -1, 1, 4, 3, 17.867298))
sketch6.addConstraint(Sketcher.Constraint("DistanceX", -1, 1, 0, 3, 19.371769))
sketch6.addConstraint(Sketcher.Constraint("DistanceY", 1, 3, -1, 1, 139.35552))
sketch6.addConstraint(Sketcher.Constraint("DistanceX", -1, 1, 2, 3, 9.923972))
sketch6.addConstraint(Sketcher.Constraint("DistanceY", 2, 3, -1, 1, 160.304361))
sketch6.addConstraint(Sketcher.Constraint("DistanceY", 3, 3, -1, 1, 151.567148))
sketch6.addConstraint(Sketcher.Constraint("DistanceY", 4, 3, -1, 1, 154.22953))
sketch6.addConstraint(Sketcher.Constraint("DistanceX", -1, 1, 5, 3, 11.764209))
sketch6.addConstraint(Sketcher.Constraint("DistanceY", 0, 3, 2, 3, 6.348451))
sketch6.addConstraint(Sketcher.Constraint("DistanceX", 1, 3, 4, 3, 18.481361))
sketch6.addConstraint(Sketcher.Constraint("DistanceX", -1, 1, 3, 3, 3.241074))
pocket4 = body.newObject("PartDesign::Pocket", "Pocket003")
pocket4.Profile = sketch6
pocket4.Type = "ThroughAll"
pocket4.Reversed = True
doc.recompute()

polarpattern3 = body.newObject("PartDesign::PolarPattern", "PolarPattern002")
polarpattern3.Originals = [pocket4]
polarpattern3.Axis = (doc.getObject("Y_Axis"), [""])
polarpattern3.Angle = 360
polarpattern3.Occurrences = 16
body.Tip = polarpattern3

# Sketch on XZ plane
sketch7 = body.newObject("Sketcher::SketchObject", "Sketch006")
sketch7.AttachmentSupport = (doc.getObject("XZ_Plane"), [""])
sketch7.MapMode = "FlatFace"
sketch7.addGeometry(Part.Circle(Vector(0, 0, 0), Vector(0, 0, 1), 175), False)
sketch7.addGeometry(Part.Circle(Vector(0, 0, 0), Vector(0, 0, 1), 135), False)
sketch7.addConstraint(Sketcher.Constraint("Coincident", 0, 3, -1, 1))
sketch7.addConstraint(Sketcher.Constraint("Coincident", 1, 3, -1, 1))
sketch7.addConstraint(Sketcher.Constraint("Diameter", 0, 350.0))
sketch7.addConstraint(Sketcher.Constraint("Diameter", 1, 270.0))
pocket5 = body.newObject("PartDesign::Pocket", "Pocket004")
pocket5.Profile = sketch7
pocket5.Length = 0.01

# Sketch on XZ plane
sketch8 = body.newObject("Sketcher::SketchObject", "Sketch007")
sketch8.AttachmentSupport = (doc.getObject("XZ_Plane"), [""])
sketch8.MapMode = "FlatFace"
sketch8.AttachmentOffset = App.Placement(Vector(0, 0, -5), App.Rotation())
sketch8.addGeometry(Part.LineSegment(Vector(-51, -176, 0), Vector(-51, -135, 0)), False)
sketch8.addGeometry(Part.LineSegment(Vector(-51, -135, 0), Vector(52, -135, 0)), False)
sketch8.addGeometry(Part.LineSegment(Vector(52, -135, 0), Vector(52, -176, 0)), False)
sketch8.addGeometry(Part.LineSegment(Vector(52, -176, 0), Vector(-51, -176, 0)), False)
sketch8.addConstraint(Sketcher.Constraint("Coincident", 0, 2, 1, 1))
sketch8.addConstraint(Sketcher.Constraint("Coincident", 1, 2, 2, 1))
sketch8.addConstraint(Sketcher.Constraint("Coincident", 2, 2, 3, 1))
sketch8.addConstraint(Sketcher.Constraint("Coincident", 3, 2, 0, 1))
sketch8.addConstraint(Sketcher.Constraint("Vertical", 0))
sketch8.addConstraint(Sketcher.Constraint("Horizontal", 1))
sketch8.addConstraint(Sketcher.Constraint("Vertical", 2))
sketch8.addConstraint(Sketcher.Constraint("Horizontal", 3))
sketch8.addConstraint(Sketcher.Constraint("DistanceX", 1, 1, 1, 2, 103.216039))
sketch8.addConstraint(Sketcher.Constraint("DistanceY", 0, 1, 0, 2, 40.533337))
sketch8.addConstraint(Sketcher.Constraint("DistanceX", 0, 2, -1, 1, 51.45013))
sketch8.addConstraint(Sketcher.Constraint("DistanceY", 2, 2, -1, 1, 175.650739))
pocket6 = body.newObject("PartDesign::Pocket", "Pocket005")
pocket6.Profile = sketch8
pocket6.Length = 0.01
pocket6.Reversed = True

# Sketch on XZ plane
sketch9 = body.newObject("Sketcher::SketchObject", "Sketch008")
sketch9.AttachmentSupport = (doc.getObject("XZ_Plane"), [""])
sketch9.MapMode = "FlatFace"
sketch9.AttachmentOffset = App.Placement(Vector(0, 0, -0.01), App.Rotation())
sketch9.addGeometry(Part.LineSegment(Vector(52, -178, 0), Vector(52, -135, 0)), False)
sketch9.addGeometry(Part.LineSegment(Vector(52, -135, 0), Vector(-50, -135, 0)), False)
sketch9.addGeometry(Part.LineSegment(Vector(-50, -135, 0), Vector(-50, -178, 0)), False)
sketch9.addGeometry(Part.LineSegment(Vector(-50, -178, 0), Vector(52, -178, 0)), False)
sketch9.addConstraint(Sketcher.Constraint("Coincident", 0, 2, 1, 1))
sketch9.addConstraint(Sketcher.Constraint("Coincident", 1, 2, 2, 1))
sketch9.addConstraint(Sketcher.Constraint("Coincident", 2, 2, 3, 1))
sketch9.addConstraint(Sketcher.Constraint("Coincident", 3, 2, 0, 1))
sketch9.addConstraint(Sketcher.Constraint("Vertical", 0))
sketch9.addConstraint(Sketcher.Constraint("Horizontal", 1))
sketch9.addConstraint(Sketcher.Constraint("Vertical", 2))
sketch9.addConstraint(Sketcher.Constraint("Horizontal", 3))
sketch9.addConstraint(Sketcher.Constraint("DistanceX", 1, 2, 1, 1, 102.140009))
sketch9.addConstraint(Sketcher.Constraint("DistanceY", 0, 1, 0, 2, 42.381011))
sketch9.addConstraint(Sketcher.Constraint("DistanceX", -1, 1, 0, 2, 52.322368))
sketch9.addConstraint(Sketcher.Constraint("DistanceY", 0, 2, -1, 1, 135.26557))
pocket7 = body.newObject("PartDesign::Pocket", "Pocket006")
pocket7.Profile = sketch9
pocket7.Length = 0.01

doc.recompute()
